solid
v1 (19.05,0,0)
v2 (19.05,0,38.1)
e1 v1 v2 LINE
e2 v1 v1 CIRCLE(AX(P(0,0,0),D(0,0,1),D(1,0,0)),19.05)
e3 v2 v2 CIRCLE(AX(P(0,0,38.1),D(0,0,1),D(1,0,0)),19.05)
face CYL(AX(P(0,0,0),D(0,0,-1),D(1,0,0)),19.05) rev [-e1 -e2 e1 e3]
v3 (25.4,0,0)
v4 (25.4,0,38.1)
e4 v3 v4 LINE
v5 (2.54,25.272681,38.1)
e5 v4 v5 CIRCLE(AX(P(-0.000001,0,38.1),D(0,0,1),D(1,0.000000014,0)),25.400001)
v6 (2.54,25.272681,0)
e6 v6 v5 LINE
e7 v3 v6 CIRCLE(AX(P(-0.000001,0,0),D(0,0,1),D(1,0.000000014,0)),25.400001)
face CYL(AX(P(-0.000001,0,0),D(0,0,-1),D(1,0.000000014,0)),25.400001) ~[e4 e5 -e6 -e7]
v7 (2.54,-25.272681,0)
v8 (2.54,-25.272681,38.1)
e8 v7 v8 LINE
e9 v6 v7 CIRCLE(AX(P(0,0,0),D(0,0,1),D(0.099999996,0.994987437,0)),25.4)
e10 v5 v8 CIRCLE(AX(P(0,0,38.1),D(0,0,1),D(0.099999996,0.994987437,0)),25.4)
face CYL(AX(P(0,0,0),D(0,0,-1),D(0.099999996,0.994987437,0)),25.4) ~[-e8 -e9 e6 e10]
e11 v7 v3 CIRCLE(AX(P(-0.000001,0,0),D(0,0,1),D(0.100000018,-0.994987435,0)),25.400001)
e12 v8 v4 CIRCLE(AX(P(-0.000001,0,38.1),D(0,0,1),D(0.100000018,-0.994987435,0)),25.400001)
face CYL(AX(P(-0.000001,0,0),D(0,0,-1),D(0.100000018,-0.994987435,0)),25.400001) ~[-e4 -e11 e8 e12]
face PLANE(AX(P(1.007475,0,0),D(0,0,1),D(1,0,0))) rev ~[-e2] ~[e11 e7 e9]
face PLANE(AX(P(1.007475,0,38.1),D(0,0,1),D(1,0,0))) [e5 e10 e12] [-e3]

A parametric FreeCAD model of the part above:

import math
import FreeCAD as App
import Part
import Sketcher
from FreeCAD import Vector
Q = App.Units.Quantity

doc = App.newDocument("Part")
body = doc.addObject("PartDesign::Body", "Body")

# Sketch on XY plane
sketch1 = doc.addObject("Sketcher::SketchObject", "Sketch")
body.addObject(sketch1)
sketch1.AttachmentSupport = (doc.XY_Plane, [""])
sketch1.MapMode = "FlatFace"
sketch1.addGeometry(Part.ArcOfCircle(Part.Circle(Vector(0, 0, 0), Vector(0, 0, 1), 25), math.radians(-84), math.radians(0)), False)
sketch1.addGeometry(Part.ArcOfCircle(Part.Circle(Vector(0, 0, 0), Vector(0, 0, 1), 25), math.radians(0), math.radians(84)), False)
sketch1.addGeometry(Part.ArcOfCircle(Part.Circle(Vector(0, 0, 0), Vector(0, 0, 1), 25), math.radians(84), math.radians(276)), False)
sketch1.addGeometry(Part.Circle(Vector(0, 0, 0), Vector(0, 0, 1), 19), False)
sketch1.addConstraint(Sketcher.Constraint("Tangent", 0, 2, 1, 1))
sketch1.addConstraint(Sketcher.Constraint("Tangent", 1, 2, 2, 1))
sketch1.addConstraint(Sketcher.Constraint("Tangent", 2, 2, 0, 1))
sketch1.addConstraint(Sketcher.Constraint("Coincident", 0, 3, -1, 1))
sketch1.addConstraint(Sketcher.Constraint("Coincident", 3, 3, -1, 1))
sketch1.addConstraint(Sketcher.Constraint("PointOnObject", 0, 2, -1))
sketch1.addConstraint(Sketcher.Constraint("Vertical", 1, 2, 2, 2))
sketch1.addConstraint(Sketcher.Constraint("Radius", 0, Q("1 in")))
sketch1.addConstraint(Sketcher.Constraint("Diameter", 3, Q("1.5 in")))
sketch1.addConstraint(Sketcher.Constraint("DistanceX", -1, 1, 1, 2, Q("0.1 in")))
pad1 = doc.addObject("PartDesign::Pad", "Pad")
body.addObject(pad1)
pad1.Profile = sketch1
pad1.Length = Q("1.5 in")

doc.recompute()
